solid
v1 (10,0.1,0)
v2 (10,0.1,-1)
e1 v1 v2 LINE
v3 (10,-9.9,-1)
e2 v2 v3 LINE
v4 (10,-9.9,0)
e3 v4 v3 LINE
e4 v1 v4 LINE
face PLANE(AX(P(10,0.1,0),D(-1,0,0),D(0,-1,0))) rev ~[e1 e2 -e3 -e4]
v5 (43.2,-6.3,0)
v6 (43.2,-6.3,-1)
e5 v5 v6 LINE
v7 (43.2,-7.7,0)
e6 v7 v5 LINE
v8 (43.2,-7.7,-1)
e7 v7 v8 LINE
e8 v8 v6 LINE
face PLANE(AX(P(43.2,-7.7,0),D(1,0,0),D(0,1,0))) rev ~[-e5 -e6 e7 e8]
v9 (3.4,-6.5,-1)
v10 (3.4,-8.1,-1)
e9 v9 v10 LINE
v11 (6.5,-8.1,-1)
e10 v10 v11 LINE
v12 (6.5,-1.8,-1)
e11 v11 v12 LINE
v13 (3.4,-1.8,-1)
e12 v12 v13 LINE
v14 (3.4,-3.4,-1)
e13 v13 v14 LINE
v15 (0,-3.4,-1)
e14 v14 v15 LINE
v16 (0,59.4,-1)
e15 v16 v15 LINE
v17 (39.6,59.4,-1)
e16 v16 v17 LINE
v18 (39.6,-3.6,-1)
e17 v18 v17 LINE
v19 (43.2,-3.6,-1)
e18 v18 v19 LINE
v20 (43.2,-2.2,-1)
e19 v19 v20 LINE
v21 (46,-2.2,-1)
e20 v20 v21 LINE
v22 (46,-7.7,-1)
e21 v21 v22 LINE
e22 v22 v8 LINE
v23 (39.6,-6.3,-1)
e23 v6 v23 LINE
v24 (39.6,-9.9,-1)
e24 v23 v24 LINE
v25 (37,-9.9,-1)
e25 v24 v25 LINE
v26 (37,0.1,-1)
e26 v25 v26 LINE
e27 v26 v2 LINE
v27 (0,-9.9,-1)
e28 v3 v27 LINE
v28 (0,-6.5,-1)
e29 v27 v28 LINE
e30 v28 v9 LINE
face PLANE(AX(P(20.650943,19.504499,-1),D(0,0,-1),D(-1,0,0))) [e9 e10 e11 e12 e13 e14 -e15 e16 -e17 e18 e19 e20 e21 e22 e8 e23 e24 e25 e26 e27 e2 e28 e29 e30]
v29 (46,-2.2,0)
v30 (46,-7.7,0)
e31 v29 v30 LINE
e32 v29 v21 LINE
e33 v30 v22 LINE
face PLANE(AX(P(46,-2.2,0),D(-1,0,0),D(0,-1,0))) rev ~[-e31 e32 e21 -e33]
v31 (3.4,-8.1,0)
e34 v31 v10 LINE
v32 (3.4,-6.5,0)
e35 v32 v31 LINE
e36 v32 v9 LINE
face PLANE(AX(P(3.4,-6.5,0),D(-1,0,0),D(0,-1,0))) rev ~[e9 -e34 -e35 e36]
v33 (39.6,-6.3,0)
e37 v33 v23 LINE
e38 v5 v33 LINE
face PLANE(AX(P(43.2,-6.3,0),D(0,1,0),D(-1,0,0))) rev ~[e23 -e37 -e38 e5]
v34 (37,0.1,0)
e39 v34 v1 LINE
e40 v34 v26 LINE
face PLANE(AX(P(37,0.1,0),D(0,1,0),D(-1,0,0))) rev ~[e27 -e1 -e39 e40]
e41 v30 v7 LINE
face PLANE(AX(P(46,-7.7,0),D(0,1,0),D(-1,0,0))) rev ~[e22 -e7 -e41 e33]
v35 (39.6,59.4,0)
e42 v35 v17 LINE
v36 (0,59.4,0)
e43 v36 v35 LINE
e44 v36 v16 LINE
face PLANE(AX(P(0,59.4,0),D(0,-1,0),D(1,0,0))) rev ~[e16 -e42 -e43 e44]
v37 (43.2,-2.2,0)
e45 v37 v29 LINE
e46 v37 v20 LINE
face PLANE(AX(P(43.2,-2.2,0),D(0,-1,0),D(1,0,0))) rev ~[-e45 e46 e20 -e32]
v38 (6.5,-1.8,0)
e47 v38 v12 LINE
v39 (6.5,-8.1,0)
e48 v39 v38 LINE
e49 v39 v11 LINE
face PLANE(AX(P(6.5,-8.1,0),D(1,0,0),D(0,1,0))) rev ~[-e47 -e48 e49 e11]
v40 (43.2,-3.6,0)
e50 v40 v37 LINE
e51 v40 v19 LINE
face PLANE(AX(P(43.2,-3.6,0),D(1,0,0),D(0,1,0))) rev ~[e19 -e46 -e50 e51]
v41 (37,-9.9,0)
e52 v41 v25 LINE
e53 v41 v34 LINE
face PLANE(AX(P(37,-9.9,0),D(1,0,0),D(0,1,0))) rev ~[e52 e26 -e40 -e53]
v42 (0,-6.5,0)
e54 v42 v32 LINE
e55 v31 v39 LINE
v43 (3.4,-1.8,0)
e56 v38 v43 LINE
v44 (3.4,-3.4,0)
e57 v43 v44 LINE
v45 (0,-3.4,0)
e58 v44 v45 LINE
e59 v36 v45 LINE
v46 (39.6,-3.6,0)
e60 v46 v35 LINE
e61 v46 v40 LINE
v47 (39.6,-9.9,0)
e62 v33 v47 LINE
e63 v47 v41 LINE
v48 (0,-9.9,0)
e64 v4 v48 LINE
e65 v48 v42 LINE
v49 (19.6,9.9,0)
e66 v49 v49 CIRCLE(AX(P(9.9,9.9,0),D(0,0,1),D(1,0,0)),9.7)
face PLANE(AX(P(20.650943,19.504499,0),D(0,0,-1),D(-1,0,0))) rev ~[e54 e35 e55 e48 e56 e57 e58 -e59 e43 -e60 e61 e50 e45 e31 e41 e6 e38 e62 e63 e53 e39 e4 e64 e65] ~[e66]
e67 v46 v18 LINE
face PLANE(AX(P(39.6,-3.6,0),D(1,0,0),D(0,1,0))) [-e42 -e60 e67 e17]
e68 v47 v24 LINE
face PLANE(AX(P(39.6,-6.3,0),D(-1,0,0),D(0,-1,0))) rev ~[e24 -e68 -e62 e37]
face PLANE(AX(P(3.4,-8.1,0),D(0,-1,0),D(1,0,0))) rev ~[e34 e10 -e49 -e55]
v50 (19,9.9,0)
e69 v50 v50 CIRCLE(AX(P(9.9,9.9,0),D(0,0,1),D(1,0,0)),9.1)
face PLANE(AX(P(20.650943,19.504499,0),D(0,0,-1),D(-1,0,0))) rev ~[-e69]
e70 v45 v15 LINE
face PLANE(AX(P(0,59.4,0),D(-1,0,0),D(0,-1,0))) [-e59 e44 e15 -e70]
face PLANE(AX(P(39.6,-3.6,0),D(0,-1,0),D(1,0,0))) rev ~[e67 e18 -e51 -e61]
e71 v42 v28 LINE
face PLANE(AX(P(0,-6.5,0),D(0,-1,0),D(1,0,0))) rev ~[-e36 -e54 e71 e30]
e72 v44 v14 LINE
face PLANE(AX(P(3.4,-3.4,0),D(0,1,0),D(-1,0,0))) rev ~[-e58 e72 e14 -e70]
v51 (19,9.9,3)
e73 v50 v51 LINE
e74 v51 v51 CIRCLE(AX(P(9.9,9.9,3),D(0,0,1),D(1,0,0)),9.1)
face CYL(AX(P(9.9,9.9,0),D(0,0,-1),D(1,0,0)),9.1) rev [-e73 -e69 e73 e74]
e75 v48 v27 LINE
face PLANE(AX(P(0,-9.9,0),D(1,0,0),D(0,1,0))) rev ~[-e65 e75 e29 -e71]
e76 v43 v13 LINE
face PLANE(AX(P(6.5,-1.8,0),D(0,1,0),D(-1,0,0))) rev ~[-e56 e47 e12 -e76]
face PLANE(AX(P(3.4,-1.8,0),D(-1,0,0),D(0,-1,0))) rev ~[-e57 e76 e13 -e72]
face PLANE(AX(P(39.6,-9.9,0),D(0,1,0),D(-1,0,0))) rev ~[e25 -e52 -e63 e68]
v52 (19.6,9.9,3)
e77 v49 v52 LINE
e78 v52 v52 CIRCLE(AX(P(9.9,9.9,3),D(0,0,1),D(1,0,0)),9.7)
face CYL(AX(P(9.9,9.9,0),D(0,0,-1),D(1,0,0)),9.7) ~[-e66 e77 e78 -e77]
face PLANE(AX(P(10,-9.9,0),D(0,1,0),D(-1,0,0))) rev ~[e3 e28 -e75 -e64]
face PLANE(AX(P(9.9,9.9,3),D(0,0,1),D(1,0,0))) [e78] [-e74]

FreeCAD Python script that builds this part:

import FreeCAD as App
import Part
import Sketcher

V = App.Vector

doc = App.newDocument("Part")
body = doc.addObject("PartDesign::Body", "Body")

# Sketch on XY plane
sketch1 = body.newObject("Sketcher::SketchObject", "Sketch")
sketch1.AttachmentSupport = (doc.getObject("XY_Plane"), [""])
sketch1.MapMode = "FlatFace"
sketch1.addGeometry(Part.LineSegment(V(10, -9.9, 0), V(10, 0.1, 0)), False)
sketch1.addGeometry(Part.LineSegment(V(10, 0.1, 0), V(37, 0.1, 0)), False)
sketch1.addGeometry(Part.LineSegment(V(37, 0.1, 0), V(37, -9.9, 0)), False)
sketch1.addGeometry(Part.LineSegment(V(37, -9.9, 0), V(39.6, -9.9, 0)), False)
sketch1.addGeometry(Part.LineSegment(V(39.6, -9.9, 0), V(39.6, -6.3, 0)), False)
sketch1.addGeometry(Part.LineSegment(V(39.6, -6.3, 0), V(43.2, -6.3, 0)), False)
sketch1.addGeometry(Part.LineSegment(V(43.2, -6.3, 0), V(43.2, -7.7, 0)), False)
sketch1.addGeometry(Part.LineSegment(V(43.2, -7.7, 0), V(46, -7.7, 0)), False)
sketch1.addGeometry(Part.LineSegment(V(46, -7.7, 0), V(46, -2.2, 0)), False)
sketch1.addGeometry(Part.LineSegment(V(46, -2.2, 0), V(43.2, -2.2, 0)), False)
sketch1.addGeometry(Part.LineSegment(V(43.2, -2.2, 0), V(43.2, -3.6, 0)), False)
sketch1.addGeometry(Part.LineSegment(V(43.2, -3.6, 0), V(39.6, -3.6, 0)), False)
sketch1.addGeometry(Part.LineSegment(V(39.6, -3.6, 0), V(39.6, 59.4, 0)), False)
sketch1.addGeometry(Part.LineSegment(V(39.6, 59.4, 0), V(0, 59.4, 0)), False)
sketch1.addGeometry(Part.LineSegment(V(0, 59.4, 0), V(0, -3.4, 0)), False)
sketch1.addGeometry(Part.LineSegment(V(0, -3.4, 0), V(3.4, -3.4, 0)), False)
sketch1.addGeometry(Part.LineSegment(V(3.4, -3.4, 0), V(3.4, -1.8, 0)), False)
sketch1.addGeometry(Part.LineSegment(V(3.4, -1.8, 0), V(6.5, -1.8, 0)), False)
sketch1.addGeometry(Part.LineSegment(V(6.5, -1.8, 0), V(6.5, -8.1, 0)), False)
sketch1.addGeometry(Part.LineSegment(V(6.5, -8.1, 0), V(3.4, -8.1, 0)), False)
sketch1.addGeometry(Part.LineSegment(V(3.4, -8.1, 0), V(3.4, -6.5, 0)), False)
sketch1.addGeometry(Part.LineSegment(V(3.4, -6.5, 0), V(0, -6.5, 0)), False)
sketch1.addGeometry(Part.LineSegment(V(0, -6.5, 0), V(0, -9.9, 0)), False)
sketch1.addGeometry(Part.LineSegment(V(0, -9.9, 0), V(10, -9.9, 0)), False)
sketch1.addConstraint(Sketcher.Constraint("Coincident", 0, 2, 1, 1))
sketch1.addConstraint(Sketcher.Constraint("Coincident", 1, 2, 2, 1))
sketch1.addConstraint(Sketcher.Constraint("Coincident", 2, 2, 3, 1))
sketch1.addConstraint(Sketcher.Constraint("Coincident", 3, 2, 4, 1))
sketch1.addConstraint(Sketcher.Constraint("Coincident", 4, 2, 5, 1))
sketch1.addConstraint(Sketcher.Constraint("Coincident", 5, 2, 6, 1))
sketch1.addConstraint(Sketcher.Constraint("Coincident", 6, 2, 7, 1))
sketch1.addConstraint(Sketcher.Constraint("Coincident", 7, 2, 8, 1))
sketch1.addConstraint(Sketcher.Constraint("Coincident", 8, 2, 9, 1))
sketch1.addConstraint(Sketcher.Constraint("Coincident", 9, 2, 10, 1))
sketch1.addConstraint(Sketcher.Constraint("Coincident", 10, 2, 11, 1))
sketch1.addConstraint(Sketcher.Constraint("Coincident", 11, 2, 12, 1))
sketch1.addConstraint(Sketcher.Constraint("Coincident", 12, 2, 13, 1))
sketch1.addConstraint(Sketcher.Constraint("Coincident", 13, 2, 14, 1))
sketch1.addConstraint(Sketcher.Constraint("Coincident", 14, 2, 15, 1))
sketch1.addConstraint(Sketcher.Constraint("Coincident", 15, 2, 16, 1))
sketch1.addConstraint(Sketcher.Constraint("Coincident", 16, 2, 17, 1))
sketch1.addConstraint(Sketcher.Constraint("Coincident", 17, 2, 18, 1))
sketch1.addConstraint(Sketcher.Constraint("Coincident", 18, 2, 19, 1))
sketch1.addConstraint(Sketcher.Constraint("Coincident", 19, 2, 20, 1))
sketch1.addConstraint(Sketcher.Constraint("Coincident", 20, 2, 21, 1))
sketch1.addConstraint(Sketcher.Constraint("Coincident", 21, 2, 22, 1))
sketch1.addConstraint(Sketcher.Constraint("Coincident", 22, 2, 23, 1))
sketch1.addConstraint(Sketcher.Constraint("Coincident", 23, 2, 0, 1))
sketch1.addConstraint(Sketcher.Constraint("Vertical", 0))
sketch1.addConstraint(Sketcher.Constraint("Horizontal", 1))
sketch1.addConstraint(Sketcher.Constraint("Vertical", 2))
sketch1.addConstraint(Sketcher.Constraint("Horizontal", 3))
sketch1.addConstraint(Sketcher.Constraint("Vertical", 4))
sketch1.addConstraint(Sketcher.Constraint("Horizontal", 5))
sketch1.addConstraint(Sketcher.Constraint("Vertical", 6))
sketch1.addConstraint(Sketcher.Constraint("Horizontal", 7))
sketch1.addConstraint(Sketcher.Constraint("Vertical", 8))
sketch1.addConstraint(Sketcher.Constraint("Horizontal", 9))
sketch1.addConstraint(Sketcher.Constraint("Vertical", 10))
sketch1.addConstraint(Sketcher.Constraint("Horizontal", 11))
sketch1.addConstraint(Sketcher.Constraint("Vertical", 12))
sketch1.addConstraint(Sketcher.Constraint("Horizontal", 13))
sketch1.addConstraint(Sketcher.Constraint("Vertical", 14))
sketch1.addConstraint(Sketcher.Constraint("Horizontal", 15))
sketch1.addConstraint(Sketcher.Constraint("Vertical", 16))
sketch1.addConstraint(Sketcher.Constraint("Horizontal", 17))
sketch1.addConstraint(Sketcher.Constraint("Vertical", 18))
sketch1.addConstraint(Sketcher.Constraint("Horizontal", 19))
sketch1.addConstraint(Sketcher.Constraint("Vertical", 20))
sketch1.addConstraint(Sketcher.Constraint("Horizontal", 21))
sketch1.addConstraint(Sketcher.Constraint("Vertical", 22))
sketch1.addConstraint(Sketcher.Constraint("Horizontal", 23))
sketch1.addConstraint(Sketcher.Constraint("PointOnObject", 13, 2, -2))
sketch1.addConstraint(Sketcher.Constraint("PointOnObject", 21, 2, -2))
sketch1.addConstraint(Sketcher.Constraint("Horizontal", 3, 2, 22, 2))
sketch1.addConstraint(Sketcher.Constraint("Vertical", 6, 2, 9, 2))
sketch1.addConstraint(Sketcher.Constraint("Vertical", 4, 2, 11, 2))
sketch1.addConstraint(Sketcher.Constraint("Vertical", 16, 2, 19, 2))
sketch1.addConstraint(Sketcher.Constraint("Equal", 23, 0))
sketch1.addConstraint(Sketcher.Constraint("Equal", 11, 4))
sketch1.addConstraint(Sketcher.Constraint("Equal", 6, 10))
sketch1.addConstraint(Sketcher.Constraint("Equal", 16, 20))
sketch1.addConstraint(Sketcher.Constraint("Equal", 21, 22))
sketch1.addConstraint(Sketcher.Constraint("DistanceX", 1, 1, 1, 2, 27.0))
sketch1.addConstraint(Sketcher.Constraint("DistanceX", 23, 1, 23, 2, 10.0))
sketch1.addConstraint(Sketcher.Constraint("DistanceY", 12, 1, 12, 2, 63.0))
sketch1.addConstraint(Sketcher.Constraint("DistanceX", 3, 1, 3, 2, 2.6))
sketch1.addConstraint(Sketcher.Constraint("DistanceX", 5, 1, 5, 2, 3.6))
sketch1.addConstraint(Sketcher.Constraint("DistanceX", 7, 1, 7, 2, 2.8))
sketch1.addConstraint(Sketcher.Constraint("DistanceX", 15, 1, 15, 2, 3.4))
sketch1.addConstraint(Sketcher.Constraint("DistanceX", 17, 1, 17, 2, 3.1))
sketch1.addConstraint(Sketcher.Constraint("DistanceY", 6, 2, 6, 1, 1.4))
sketch1.addConstraint(Sketcher.Constraint("DistanceY", 8, 1, 8, 2, 5.5))
sketch1.addConstraint(Sketcher.Constraint("DistanceY", 14, 2, 14, 1, 62.8))
sketch1.addConstraint(Sketcher.Constraint("DistanceY", 16, 1, 16, 2, 1.6))
sketch1.addConstraint(Sketcher.Constraint("DistanceY", -1, 1, 0, 2, 0.1))
pad1 = body.newObject("PartDesign::Pad", "Pad")
pad1.Profile = sketch1
pad1.Length = 1
pad1.Reversed = True

# Sketch on XY plane
sketch2 = body.newObject("Sketcher::SketchObject", "Sketch001")
sketch2.AttachmentSupport = (doc.getObject("XY_Plane"), [""])
sketch2.MapMode = "FlatFace"
sketch2.addGeometry(Part.Circle(V(9.9, 9.9, 0), V(0, 0, 1), 9.7), False)
sketch2.addGeometry(Part.Circle(V(9.9, 9.9, 0), V(0, 0, 1), 9.1), False)
sketch2.addConstraint(Sketcher.Constraint("Coincident", 1, 3, 0, 3))
sketch2.addConstraint(Sketcher.Constraint("Diameter", 0, 19.4))
sketch2.addConstraint(Sketcher.Constraint("Diameter", 1, 18.2))
sketch2.addConstraint(Sketcher.Constraint("DistanceX", -1, 1, 0, 3, 9.9))
sketch2.addConstraint(Sketcher.Constraint("DistanceY", -1, 1, 0, 3, 9.9))
pad2 = body.newObject("PartDesign::Pad", "Pad001")
pad2.Profile = sketch2
pad2.Length = 3

doc.recompute()
